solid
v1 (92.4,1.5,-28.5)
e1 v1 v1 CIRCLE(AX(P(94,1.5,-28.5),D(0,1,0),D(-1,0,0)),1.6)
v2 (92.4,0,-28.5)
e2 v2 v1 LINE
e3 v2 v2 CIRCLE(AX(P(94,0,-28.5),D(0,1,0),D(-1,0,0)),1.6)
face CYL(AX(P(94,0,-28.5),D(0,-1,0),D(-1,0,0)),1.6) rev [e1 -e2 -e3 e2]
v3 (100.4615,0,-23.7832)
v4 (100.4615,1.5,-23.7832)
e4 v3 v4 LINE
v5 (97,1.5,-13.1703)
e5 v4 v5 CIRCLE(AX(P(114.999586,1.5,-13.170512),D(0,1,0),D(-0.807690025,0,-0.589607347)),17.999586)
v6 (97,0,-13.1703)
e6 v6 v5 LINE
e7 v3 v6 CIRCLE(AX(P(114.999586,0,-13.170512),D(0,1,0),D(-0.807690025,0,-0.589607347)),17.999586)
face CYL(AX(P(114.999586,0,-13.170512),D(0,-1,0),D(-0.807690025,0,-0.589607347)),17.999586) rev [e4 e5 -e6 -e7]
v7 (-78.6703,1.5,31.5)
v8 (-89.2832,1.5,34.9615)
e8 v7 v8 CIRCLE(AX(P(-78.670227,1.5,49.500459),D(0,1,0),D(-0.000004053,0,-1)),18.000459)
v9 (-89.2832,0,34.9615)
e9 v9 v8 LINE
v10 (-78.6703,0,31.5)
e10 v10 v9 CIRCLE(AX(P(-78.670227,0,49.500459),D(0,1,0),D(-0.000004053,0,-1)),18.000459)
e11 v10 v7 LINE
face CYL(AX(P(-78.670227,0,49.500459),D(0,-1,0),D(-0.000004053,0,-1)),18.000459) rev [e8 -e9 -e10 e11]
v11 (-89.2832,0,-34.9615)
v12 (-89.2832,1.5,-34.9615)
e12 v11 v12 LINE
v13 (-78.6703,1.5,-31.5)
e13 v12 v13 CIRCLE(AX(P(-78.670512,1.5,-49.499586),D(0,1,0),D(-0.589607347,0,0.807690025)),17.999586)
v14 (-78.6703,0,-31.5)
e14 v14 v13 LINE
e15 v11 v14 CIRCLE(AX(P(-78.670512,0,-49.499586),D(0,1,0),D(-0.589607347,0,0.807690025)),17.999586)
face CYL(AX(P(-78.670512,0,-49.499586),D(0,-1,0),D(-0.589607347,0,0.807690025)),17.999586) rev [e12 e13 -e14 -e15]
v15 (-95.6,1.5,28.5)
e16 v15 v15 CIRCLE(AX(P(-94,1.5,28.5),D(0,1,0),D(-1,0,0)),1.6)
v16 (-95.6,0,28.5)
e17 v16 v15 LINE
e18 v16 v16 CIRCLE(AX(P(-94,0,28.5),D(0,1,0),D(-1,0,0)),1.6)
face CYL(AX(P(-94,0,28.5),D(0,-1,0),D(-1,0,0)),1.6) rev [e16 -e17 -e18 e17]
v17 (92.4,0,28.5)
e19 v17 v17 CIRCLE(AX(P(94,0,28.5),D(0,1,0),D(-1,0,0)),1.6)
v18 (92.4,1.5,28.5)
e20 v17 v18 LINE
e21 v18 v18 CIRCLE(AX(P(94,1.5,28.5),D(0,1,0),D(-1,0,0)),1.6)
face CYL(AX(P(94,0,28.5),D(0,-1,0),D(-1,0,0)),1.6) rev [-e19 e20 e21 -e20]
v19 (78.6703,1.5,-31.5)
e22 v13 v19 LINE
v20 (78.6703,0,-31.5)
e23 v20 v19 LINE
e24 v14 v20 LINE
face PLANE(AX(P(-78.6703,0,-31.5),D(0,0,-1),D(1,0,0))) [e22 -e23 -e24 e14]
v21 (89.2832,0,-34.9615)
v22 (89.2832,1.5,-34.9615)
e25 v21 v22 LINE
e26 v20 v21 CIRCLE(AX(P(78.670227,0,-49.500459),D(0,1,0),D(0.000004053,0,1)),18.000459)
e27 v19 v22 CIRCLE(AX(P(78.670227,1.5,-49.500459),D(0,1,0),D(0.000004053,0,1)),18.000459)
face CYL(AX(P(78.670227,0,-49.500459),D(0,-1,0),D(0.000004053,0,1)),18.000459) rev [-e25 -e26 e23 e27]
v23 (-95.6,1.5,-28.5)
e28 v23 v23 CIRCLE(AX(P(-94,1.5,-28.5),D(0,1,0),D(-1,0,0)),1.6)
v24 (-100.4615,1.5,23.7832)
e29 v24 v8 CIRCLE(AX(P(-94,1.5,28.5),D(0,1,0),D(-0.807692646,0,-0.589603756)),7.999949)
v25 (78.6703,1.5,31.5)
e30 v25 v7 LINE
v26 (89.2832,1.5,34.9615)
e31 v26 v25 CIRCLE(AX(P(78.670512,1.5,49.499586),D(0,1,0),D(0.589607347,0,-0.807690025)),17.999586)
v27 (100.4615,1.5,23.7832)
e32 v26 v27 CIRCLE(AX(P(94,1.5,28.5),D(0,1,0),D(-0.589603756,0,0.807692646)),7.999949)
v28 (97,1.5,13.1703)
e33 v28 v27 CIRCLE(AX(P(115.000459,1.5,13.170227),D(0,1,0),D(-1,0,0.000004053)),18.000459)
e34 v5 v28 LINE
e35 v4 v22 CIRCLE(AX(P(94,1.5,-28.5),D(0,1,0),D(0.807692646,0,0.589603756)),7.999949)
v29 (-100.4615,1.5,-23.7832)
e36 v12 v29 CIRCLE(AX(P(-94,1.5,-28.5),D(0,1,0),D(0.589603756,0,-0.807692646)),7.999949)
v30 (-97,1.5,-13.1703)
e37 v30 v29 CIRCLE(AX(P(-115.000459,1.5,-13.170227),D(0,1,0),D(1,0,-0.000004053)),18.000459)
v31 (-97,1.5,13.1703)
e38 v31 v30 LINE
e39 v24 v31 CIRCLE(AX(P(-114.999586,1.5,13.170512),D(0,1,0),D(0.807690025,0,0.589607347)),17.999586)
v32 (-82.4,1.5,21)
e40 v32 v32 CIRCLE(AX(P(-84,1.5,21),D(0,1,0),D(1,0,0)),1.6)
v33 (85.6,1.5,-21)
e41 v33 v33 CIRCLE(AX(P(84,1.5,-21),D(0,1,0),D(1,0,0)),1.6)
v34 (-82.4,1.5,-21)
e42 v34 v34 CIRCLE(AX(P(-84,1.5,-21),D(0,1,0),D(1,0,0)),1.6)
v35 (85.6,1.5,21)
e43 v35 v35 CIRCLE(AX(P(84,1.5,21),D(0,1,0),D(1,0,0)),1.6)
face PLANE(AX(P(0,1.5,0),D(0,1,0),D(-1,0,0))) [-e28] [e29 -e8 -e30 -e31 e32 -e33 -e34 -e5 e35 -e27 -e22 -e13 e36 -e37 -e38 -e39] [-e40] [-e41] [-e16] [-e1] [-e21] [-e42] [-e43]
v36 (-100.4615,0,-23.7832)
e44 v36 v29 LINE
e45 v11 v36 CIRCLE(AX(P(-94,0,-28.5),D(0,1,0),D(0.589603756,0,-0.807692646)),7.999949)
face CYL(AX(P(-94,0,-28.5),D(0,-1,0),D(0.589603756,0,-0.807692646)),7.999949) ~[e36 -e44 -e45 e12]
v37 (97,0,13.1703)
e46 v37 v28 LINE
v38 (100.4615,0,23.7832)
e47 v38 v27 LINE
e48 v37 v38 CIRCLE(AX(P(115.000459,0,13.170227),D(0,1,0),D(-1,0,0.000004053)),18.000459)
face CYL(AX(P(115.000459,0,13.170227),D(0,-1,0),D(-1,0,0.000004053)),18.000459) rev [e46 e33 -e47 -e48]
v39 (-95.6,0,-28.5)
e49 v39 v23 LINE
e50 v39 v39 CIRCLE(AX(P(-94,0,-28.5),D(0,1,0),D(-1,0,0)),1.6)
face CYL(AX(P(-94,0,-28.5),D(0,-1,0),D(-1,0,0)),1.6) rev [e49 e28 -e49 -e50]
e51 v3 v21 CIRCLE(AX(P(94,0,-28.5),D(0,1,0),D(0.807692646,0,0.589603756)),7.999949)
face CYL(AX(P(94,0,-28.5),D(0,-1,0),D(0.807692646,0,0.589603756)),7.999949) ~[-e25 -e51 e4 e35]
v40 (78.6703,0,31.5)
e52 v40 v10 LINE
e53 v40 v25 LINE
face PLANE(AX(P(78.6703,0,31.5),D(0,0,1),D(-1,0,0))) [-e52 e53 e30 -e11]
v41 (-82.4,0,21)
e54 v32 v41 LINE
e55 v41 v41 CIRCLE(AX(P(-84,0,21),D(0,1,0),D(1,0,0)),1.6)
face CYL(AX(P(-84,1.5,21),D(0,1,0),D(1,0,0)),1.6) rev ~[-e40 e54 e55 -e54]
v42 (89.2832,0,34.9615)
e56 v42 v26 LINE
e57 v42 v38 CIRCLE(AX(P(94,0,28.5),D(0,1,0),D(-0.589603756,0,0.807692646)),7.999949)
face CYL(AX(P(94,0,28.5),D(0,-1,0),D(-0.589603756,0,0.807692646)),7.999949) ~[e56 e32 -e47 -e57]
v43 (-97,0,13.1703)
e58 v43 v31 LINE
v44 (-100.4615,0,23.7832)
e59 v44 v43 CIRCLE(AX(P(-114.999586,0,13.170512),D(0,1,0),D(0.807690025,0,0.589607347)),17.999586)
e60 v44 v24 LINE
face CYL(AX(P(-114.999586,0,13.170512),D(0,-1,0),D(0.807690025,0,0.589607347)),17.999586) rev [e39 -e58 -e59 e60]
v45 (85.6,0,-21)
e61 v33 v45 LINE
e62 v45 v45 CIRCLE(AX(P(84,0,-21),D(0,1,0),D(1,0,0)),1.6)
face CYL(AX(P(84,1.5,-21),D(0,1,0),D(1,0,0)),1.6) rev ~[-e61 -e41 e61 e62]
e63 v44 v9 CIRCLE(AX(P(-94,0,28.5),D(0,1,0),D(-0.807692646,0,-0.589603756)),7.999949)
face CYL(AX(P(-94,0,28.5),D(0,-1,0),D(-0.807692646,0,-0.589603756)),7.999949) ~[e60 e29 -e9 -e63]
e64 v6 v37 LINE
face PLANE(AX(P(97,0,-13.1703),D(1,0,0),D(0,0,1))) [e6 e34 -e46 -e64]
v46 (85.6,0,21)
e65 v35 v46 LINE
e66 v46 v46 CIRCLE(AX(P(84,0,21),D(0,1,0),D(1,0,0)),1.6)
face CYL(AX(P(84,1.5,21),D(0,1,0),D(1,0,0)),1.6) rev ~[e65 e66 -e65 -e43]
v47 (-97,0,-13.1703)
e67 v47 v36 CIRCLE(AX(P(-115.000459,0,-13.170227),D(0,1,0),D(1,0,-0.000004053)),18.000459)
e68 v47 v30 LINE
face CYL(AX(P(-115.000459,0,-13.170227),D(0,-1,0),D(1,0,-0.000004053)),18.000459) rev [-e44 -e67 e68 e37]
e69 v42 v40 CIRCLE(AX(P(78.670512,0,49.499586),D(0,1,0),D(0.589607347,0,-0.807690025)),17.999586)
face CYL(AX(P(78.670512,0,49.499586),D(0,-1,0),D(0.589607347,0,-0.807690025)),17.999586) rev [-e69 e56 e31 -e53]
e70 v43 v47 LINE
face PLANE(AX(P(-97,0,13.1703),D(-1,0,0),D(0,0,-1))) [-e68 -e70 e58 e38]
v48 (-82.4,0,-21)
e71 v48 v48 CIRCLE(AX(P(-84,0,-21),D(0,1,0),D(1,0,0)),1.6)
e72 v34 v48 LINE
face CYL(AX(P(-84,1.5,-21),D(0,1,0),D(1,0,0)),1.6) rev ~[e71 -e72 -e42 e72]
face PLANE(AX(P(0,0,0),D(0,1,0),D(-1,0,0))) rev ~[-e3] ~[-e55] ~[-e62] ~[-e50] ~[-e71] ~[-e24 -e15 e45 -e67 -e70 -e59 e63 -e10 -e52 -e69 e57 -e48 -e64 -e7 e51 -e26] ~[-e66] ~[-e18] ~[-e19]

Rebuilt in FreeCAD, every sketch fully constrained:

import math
import FreeCAD as App
import Part
import Sketcher

doc = App.newDocument("Part")
body = doc.addObject("PartDesign::Body", "Body")

# Sketch on XZ plane
sketch1 = body.newObject("Sketcher::SketchObject", "Sketch")
sketch1.AttachmentSupport = (doc.getObject("XZ_Plane"), [""])
sketch1.MapMode = "FlatFace"
sketch1.addGeometry([
    Part.LineSegment(App.Vector(78.6703, -31.5, 0), App.Vector(-78.6703, -31.5, 0)),  # 0
    Part.ArcOfCircle(Part.Circle(App.Vector(-78.6703, -49.5, 0), App.Vector(0, 0, 1), 18.000045), math.radians(90), math.radians(126.128917)),  # 1
    Part.ArcOfCircle(Part.Circle(App.Vector(-94, -28.5, 0), App.Vector(0, 0, 1), 7.999949), math.radians(143.871105), math.radians(306.128895)),  # 2
    Part.ArcOfCircle(Part.Circle(App.Vector(-115, -13.1703, 0), App.Vector(0, 0, 1), 18), math.radians(-36.128917), math.radians(0)),  # 3
    Part.LineSegment(App.Vector(-97, -13.1703, 0), App.Vector(-97, 13.1703, 0)),  # 4
    Part.ArcOfCircle(Part.Circle(App.Vector(-115, 13.1703, 0), App.Vector(0, 0, 1), 18.000045), math.radians(0), math.radians(36.128917)),  # 5
    Part.ArcOfCircle(Part.Circle(App.Vector(-94, 28.5, 0), App.Vector(0, 0, 1), 7.999949), math.radians(53.871105), math.radians(216.128895)),  # 6
    Part.ArcOfCircle(Part.Circle(App.Vector(-78.6703, 49.5, 0), App.Vector(0, 0, 1), 18), math.radians(-126.128917), math.radians(-90)),  # 7
    Part.LineSegment(App.Vector(-78.6703, 31.5, 0), App.Vector(78.6703, 31.5, 0)),  # 8
    Part.ArcOfCircle(Part.Circle(App.Vector(78.6703, 49.5, 0), App.Vector(0, 0, 1), 18.000045), math.radians(-90), math.radians(-53.871083)),  # 9
    Part.ArcOfCircle(Part.Circle(App.Vector(94, 28.5, 0), App.Vector(0, 0, 1), 7.999949), math.radians(-36.128895), math.radians(126.128895)),  # 10
    Part.ArcOfCircle(Part.Circle(App.Vector(115, 13.1703, 0), App.Vector(0, 0, 1), 18), math.radians(143.871083), math.radians(180)),  # 11
    Part.LineSegment(App.Vector(97, 13.1703, 0), App.Vector(97, -13.1703, 0)),  # 12
    Part.ArcOfCircle(Part.Circle(App.Vector(115, -13.1703, 0), App.Vector(0, 0, 1), 18.000045), math.radians(180), math.radians(216.128917)),  # 13
    Part.ArcOfCircle(Part.Circle(App.Vector(94, -28.5, 0), App.Vector(0, 0, 1), 7.999949), math.radians(-126.128895), math.radians(36.128895)),  # 14
    Part.ArcOfCircle(Part.Circle(App.Vector(78.6703, -49.5, 0), App.Vector(0, 0, 1), 18), math.radians(53.871083), math.radians(90)),  # 15
    Part.Circle(App.Vector(94, -28.5, 0), App.Vector(0, 0, 1), 1.6),  # 16
    Part.Circle(App.Vector(-94, -28.5, 0), App.Vector(0, 0, 1), 1.6),  # 17
    Part.Circle(App.Vector(94, 28.5, 0), App.Vector(0, 0, 1), 1.6),  # 18
    Part.Circle(App.Vector(-94, 28.5, 0), App.Vector(0, 0, 1), 1.6),  # 19
], False)
sketch1.addConstraint([
    Sketcher.Constraint("Tangent", 0, 2, 1, 1),
    Sketcher.Constraint("Tangent", 1, 2, 2, 2),
    Sketcher.Constraint("Tangent", 2, 1, 3, 1),
    Sketcher.Constraint("Tangent", 3, 2, 4, 1),
    Sketcher.Constraint("Tangent", 4, 2, 5, 1),
    Sketcher.Constraint("Tangent", 5, 2, 6, 2),
    Sketcher.Constraint("Tangent", 6, 1, 7, 1),
    Sketcher.Constraint("Tangent", 7, 2, 8, 1),
    Sketcher.Constraint("Tangent", 8, 2, 9, 1),
    Sketcher.Constraint("Tangent", 9, 2, 10, 2),
    Sketcher.Constraint("Tangent", 10, 1, 11, 1),
    Sketcher.Constraint("Tangent", 11, 2, 12, 1),
    Sketcher.Constraint("Tangent", 12, 2, 13, 1),
    Sketcher.Constraint("Tangent", 13, 2, 14, 2),
    Sketcher.Constraint("Tangent", 14, 1, 15, 1),
    Sketcher.Constraint("Tangent", 15, 2, 0, 1),
    Sketcher.Constraint("Horizontal", 0),
    Sketcher.Constraint("Vertical", 4),
    Sketcher.Constraint("Horizontal", 8),
    Sketcher.Constraint("Vertical", 12),
    Sketcher.Constraint("Coincident", 16, 3, 14, 3),
    Sketcher.Constraint("Coincident", 17, 3, 2, 3),
    Sketcher.Constraint("Coincident", 18, 3, 10, 3),
    Sketcher.Constraint("Coincident", 19, 3, 6, 3),
    Sketcher.Constraint("Equal", 1, 3),
    Sketcher.Constraint("Equal", 3, 5),
    Sketcher.Constraint("Equal", 2, 6),
    Sketcher.Constraint("Equal", 5, 7),
    Sketcher.Constraint("Equal", 7, 9),
    Sketcher.Constraint("Equal", 6, 10),
    Sketcher.Constraint("Equal", 9, 11),
    Sketcher.Constraint("Equal", 11, 13),
    Sketcher.Constraint("Equal", 10, 14),
    Sketcher.Constraint("Equal", 13, 15),
    Sketcher.Constraint("Equal", 16, 17),
    Sketcher.Constraint("Equal", 17, 18),
    Sketcher.Constraint("Equal", 18, 19),
    Sketcher.Constraint("Symmetric", 1, 3, 9, 3, -1, 1),
    Sketcher.Constraint("Symmetric", 3, 3, 11, 3, -1, 1),
    Sketcher.Constraint("Symmetric", 6, 3, 14, 3, -1, 1),
    Sketcher.Constraint("Symmetric", 6, 3, 10, 3, -2),
    Sketcher.Constraint("Radius", 1, 18.0),
    Sketcher.Constraint("Radius", 2, 8.0),
    Sketcher.Constraint("Diameter", 16, 3.2),
    Sketcher.Constraint("DistanceY", 0, 2, 2, 3, 3.0),
    Sketcher.Constraint("DistanceX", 3, 2, 2, 3, 3.0),
    Sketcher.Constraint("DistanceX", 2, 3, -1, 1, 94.0),
    Sketcher.Constraint("DistanceY", 2, 3, 6, 3, 57.0),
])
pad1 = body.newObject("PartDesign::Pad", "Pad")
pad1.Profile = sketch1
pad1.Length = 1.5
pad1.Reversed = True

# Sketch on XZ plane
sketch2 = body.newObject("Sketcher::SketchObject", "Sketch001")
sketch2.AttachmentSupport = (doc.getObject("XZ_Plane"), [""])
sketch2.MapMode = "FlatFace"
sketch2.AttachmentOffset = App.Placement(App.Vector(0, 0, -1.5), App.Rotation())
sketch2.addGeometry([
    Part.Circle(App.Vector(-84, -21, 0), App.Vector(0, 0, 1), 1.6),
    Part.Circle(App.Vector(-84, 21, 0), App.Vector(0, 0, 1), 1.6),
    Part.Circle(App.Vector(84, 21, 0), App.Vector(0, 0, 1), 1.6),
    Part.Circle(App.Vector(84, -21, 0), App.Vector(0, 0, 1), 1.6),
], False)
sketch2.addConstraint([
    Sketcher.Constraint("Equal", 0, 1),
    Sketcher.Constraint("Equal", 1, 2),
    Sketcher.Constraint("Equal", 2, 3),
    Sketcher.Constraint("Symmetric", 0, 3, 2, 3, -1, 1),
    Sketcher.Constraint("Symmetric", 1, 3, 3, 3, -1, 1),
    Sketcher.Constraint("Symmetric", 1, 3, 2, 3, -2),
    Sketcher.Constraint("Diameter", 0, 3.2),
    Sketcher.Constraint("DistanceY", 0, 3, 1, 3, 42.0),
    Sketcher.Constraint("DistanceX", 1, 3, 2, 3, 168.0),
])
pocket1 = body.newObject("PartDesign::Pocket", "Pocket")
pocket1.Profile = sketch2
pocket1.Type = "ThroughAll"
pocket1.Reversed = True

doc.recompute()
